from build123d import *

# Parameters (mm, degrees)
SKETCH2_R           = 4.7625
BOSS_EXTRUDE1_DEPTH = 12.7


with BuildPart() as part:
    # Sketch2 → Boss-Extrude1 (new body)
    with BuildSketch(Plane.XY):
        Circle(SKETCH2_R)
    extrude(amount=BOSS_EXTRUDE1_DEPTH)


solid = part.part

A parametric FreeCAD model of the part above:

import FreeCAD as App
import Part
import Sketcher

V = App.Vector
Q = App.Units.Quantity

doc = App.newDocument("Part")
body = doc.addObject("PartDesign::Body", "Body")

# Sketch on XY plane
sketch1 = body.newObject("Sketcher::SketchObject", "Sketch")
sketch1.AttachmentSupport = (doc.getObject("XY_Plane"), [""])
sketch1.MapMode = "FlatFace"
sketch1.addGeometry(Part.Circle(V(0, 0, 0), V(0, 0, 1), 4.8), False)
sketch1.addConstraint([
    Sketcher.Constraint("Coincident", 0, 3, -1, 1),
    Sketcher.Constraint("Diameter", 0, Q("0.375 in")),
])
pad1 = body.newObject("PartDesign::Pad", "Pad")
pad1.Profile = sketch1
pad1.Length = Q("0.5 in")

doc.recompute()
